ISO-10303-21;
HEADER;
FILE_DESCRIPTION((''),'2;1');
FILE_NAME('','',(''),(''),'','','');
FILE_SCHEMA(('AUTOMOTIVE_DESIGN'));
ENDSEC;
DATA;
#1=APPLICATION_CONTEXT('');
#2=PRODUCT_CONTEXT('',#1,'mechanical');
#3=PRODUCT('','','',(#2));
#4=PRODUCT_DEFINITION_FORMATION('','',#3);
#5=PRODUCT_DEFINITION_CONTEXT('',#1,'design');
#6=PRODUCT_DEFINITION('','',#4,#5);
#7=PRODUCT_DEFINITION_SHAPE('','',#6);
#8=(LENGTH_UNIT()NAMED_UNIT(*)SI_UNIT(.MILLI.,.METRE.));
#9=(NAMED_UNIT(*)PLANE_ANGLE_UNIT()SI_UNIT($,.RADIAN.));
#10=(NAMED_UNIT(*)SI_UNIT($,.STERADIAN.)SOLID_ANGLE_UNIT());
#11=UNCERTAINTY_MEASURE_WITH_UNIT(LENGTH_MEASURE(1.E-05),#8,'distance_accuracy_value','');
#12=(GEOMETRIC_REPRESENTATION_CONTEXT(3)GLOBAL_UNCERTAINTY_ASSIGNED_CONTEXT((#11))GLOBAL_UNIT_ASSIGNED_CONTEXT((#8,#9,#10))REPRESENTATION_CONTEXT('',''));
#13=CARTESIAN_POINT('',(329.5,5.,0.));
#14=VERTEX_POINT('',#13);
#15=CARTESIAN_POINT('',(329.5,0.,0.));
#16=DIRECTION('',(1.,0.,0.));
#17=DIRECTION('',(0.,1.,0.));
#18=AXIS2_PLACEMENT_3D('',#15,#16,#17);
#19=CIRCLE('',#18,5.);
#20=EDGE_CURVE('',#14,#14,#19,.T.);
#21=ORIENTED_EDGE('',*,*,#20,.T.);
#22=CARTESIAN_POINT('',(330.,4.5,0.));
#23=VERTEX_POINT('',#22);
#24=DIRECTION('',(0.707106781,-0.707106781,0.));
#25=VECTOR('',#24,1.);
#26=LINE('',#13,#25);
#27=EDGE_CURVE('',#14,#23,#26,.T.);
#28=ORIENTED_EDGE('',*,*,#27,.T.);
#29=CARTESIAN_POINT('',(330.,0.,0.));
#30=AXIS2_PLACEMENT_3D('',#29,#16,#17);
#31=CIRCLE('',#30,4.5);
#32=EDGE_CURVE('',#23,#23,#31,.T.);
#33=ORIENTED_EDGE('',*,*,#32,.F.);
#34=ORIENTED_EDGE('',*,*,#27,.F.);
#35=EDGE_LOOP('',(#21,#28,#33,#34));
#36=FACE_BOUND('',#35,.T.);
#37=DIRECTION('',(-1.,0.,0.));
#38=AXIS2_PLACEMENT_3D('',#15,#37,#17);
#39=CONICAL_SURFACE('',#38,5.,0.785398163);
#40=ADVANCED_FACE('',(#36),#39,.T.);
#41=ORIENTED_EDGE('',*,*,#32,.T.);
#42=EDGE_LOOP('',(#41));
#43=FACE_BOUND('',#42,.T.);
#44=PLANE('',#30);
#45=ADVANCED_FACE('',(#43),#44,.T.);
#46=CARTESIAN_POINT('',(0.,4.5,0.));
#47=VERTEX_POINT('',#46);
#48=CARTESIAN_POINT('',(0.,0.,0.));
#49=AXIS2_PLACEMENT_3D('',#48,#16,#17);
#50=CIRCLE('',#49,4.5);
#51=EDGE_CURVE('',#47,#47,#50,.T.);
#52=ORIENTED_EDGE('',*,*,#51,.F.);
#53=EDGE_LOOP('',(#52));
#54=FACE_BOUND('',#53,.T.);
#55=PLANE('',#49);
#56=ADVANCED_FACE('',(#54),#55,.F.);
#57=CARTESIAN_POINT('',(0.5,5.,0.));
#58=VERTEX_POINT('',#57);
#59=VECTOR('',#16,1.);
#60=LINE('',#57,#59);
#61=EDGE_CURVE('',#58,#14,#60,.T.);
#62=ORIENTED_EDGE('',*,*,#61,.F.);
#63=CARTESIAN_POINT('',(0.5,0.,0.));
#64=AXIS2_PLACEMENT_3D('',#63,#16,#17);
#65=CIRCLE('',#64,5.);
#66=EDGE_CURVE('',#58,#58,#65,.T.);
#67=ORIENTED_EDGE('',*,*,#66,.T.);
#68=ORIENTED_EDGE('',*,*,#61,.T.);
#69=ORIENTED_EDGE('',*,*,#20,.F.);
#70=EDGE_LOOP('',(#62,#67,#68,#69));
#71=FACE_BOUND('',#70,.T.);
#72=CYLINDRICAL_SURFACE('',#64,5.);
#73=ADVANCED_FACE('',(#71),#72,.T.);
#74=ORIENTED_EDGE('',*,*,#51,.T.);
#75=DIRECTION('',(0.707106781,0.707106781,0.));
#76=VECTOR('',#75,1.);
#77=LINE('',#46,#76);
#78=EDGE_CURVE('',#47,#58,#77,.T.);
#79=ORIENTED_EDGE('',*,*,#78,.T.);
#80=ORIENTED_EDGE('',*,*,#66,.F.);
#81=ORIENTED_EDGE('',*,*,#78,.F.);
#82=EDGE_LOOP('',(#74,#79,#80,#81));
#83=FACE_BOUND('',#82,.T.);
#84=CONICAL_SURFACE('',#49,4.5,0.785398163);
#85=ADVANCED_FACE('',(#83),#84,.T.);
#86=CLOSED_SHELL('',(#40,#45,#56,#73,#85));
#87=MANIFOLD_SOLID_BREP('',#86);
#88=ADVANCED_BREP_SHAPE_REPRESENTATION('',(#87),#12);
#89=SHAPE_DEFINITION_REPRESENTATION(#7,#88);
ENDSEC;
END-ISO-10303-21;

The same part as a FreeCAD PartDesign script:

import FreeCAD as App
import Part
import Sketcher

doc = App.newDocument("Part")
body = doc.addObject("PartDesign::Body", "Body")

# Sketch on XY plane
sketch1 = body.newObject("Sketcher::SketchObject", "Sketch")
sketch1.AttachmentSupport = (doc.getObject("XY_Plane"), [""])
sketch1.MapMode = "FlatFace"
sketch1.addGeometry(Part.LineSegment(App.Vector(0, 0, 0), App.Vector(330, 0, 0)), False)
sketch1.addGeometry(Part.LineSegment(App.Vector(330, 0, 0), App.Vector(330, 4.5, 0)), False)
sketch1.addGeometry(Part.LineSegment(App.Vector(330, 4.5, 0), App.Vector(329.5, 5, 0)), False)
sketch1.addGeometry(Part.LineSegment(App.Vector(329.5, 5, 0), App.Vector(0.5, 5, 0)), False)
sketch1.addGeometry(Part.LineSegment(App.Vector(0.5, 5, 0), App.Vector(0, 4.5, 0)), False)
sketch1.addGeometry(Part.LineSegment(App.Vector(0, 4.5, 0), App.Vector(0, 0, 0)), False)
sketch1.addConstraint(Sketcher.Constraint("Coincident", 0, 2, 1, 1))
sketch1.addConstraint(Sketcher.Constraint("Coincident", 1, 2, 2, 1))
sketch1.addConstraint(Sketcher.Constraint("Coincident", 2, 2, 3, 1))
sketch1.addConstraint(Sketcher.Constraint("Coincident", 3, 2, 4, 1))
sketch1.addConstraint(Sketcher.Constraint("Coincident", 4, 2, 5, 1))
sketch1.addConstraint(Sketcher.Constraint("Coincident", 5, 2, 0, 1))
sketch1.addConstraint(Sketcher.Constraint("Horizontal", 0))
sketch1.addConstraint(Sketcher.Constraint("Vertical", 1))
sketch1.addConstraint(Sketcher.Constraint("Horizontal", 3))
sketch1.addConstraint(Sketcher.Constraint("Vertical", 5))
sketch1.addConstraint(Sketcher.Constraint("Coincident", 5, 2, -1, 1))
sketch1.addConstraint(Sketcher.Constraint("Perpendicular", 2, 4))
sketch1.addConstraint(Sketcher.Constraint("Horizontal", 1, 2, 4, 2))
sketch1.addConstraint(Sketcher.Constraint("Equal", 2, 4))
sketch1.addConstraint(Sketcher.Constraint("DistanceX", 0, 1, 0, 2, 330.0))
sketch1.addConstraint(Sketcher.Constraint("DistanceX", 3, 2, 3, 1, 329.0))
sketch1.addConstraint(Sketcher.Constraint("DistanceY", 1, 1, 1, 2, 4.5))
revolution = body.newObject("PartDesign::Revolution", "Revolution")
revolution.Profile = sketch1
revolution.ReferenceAxis = (sketch1, ["H_Axis"])
revolution.Angle = 360

doc.recompute()
